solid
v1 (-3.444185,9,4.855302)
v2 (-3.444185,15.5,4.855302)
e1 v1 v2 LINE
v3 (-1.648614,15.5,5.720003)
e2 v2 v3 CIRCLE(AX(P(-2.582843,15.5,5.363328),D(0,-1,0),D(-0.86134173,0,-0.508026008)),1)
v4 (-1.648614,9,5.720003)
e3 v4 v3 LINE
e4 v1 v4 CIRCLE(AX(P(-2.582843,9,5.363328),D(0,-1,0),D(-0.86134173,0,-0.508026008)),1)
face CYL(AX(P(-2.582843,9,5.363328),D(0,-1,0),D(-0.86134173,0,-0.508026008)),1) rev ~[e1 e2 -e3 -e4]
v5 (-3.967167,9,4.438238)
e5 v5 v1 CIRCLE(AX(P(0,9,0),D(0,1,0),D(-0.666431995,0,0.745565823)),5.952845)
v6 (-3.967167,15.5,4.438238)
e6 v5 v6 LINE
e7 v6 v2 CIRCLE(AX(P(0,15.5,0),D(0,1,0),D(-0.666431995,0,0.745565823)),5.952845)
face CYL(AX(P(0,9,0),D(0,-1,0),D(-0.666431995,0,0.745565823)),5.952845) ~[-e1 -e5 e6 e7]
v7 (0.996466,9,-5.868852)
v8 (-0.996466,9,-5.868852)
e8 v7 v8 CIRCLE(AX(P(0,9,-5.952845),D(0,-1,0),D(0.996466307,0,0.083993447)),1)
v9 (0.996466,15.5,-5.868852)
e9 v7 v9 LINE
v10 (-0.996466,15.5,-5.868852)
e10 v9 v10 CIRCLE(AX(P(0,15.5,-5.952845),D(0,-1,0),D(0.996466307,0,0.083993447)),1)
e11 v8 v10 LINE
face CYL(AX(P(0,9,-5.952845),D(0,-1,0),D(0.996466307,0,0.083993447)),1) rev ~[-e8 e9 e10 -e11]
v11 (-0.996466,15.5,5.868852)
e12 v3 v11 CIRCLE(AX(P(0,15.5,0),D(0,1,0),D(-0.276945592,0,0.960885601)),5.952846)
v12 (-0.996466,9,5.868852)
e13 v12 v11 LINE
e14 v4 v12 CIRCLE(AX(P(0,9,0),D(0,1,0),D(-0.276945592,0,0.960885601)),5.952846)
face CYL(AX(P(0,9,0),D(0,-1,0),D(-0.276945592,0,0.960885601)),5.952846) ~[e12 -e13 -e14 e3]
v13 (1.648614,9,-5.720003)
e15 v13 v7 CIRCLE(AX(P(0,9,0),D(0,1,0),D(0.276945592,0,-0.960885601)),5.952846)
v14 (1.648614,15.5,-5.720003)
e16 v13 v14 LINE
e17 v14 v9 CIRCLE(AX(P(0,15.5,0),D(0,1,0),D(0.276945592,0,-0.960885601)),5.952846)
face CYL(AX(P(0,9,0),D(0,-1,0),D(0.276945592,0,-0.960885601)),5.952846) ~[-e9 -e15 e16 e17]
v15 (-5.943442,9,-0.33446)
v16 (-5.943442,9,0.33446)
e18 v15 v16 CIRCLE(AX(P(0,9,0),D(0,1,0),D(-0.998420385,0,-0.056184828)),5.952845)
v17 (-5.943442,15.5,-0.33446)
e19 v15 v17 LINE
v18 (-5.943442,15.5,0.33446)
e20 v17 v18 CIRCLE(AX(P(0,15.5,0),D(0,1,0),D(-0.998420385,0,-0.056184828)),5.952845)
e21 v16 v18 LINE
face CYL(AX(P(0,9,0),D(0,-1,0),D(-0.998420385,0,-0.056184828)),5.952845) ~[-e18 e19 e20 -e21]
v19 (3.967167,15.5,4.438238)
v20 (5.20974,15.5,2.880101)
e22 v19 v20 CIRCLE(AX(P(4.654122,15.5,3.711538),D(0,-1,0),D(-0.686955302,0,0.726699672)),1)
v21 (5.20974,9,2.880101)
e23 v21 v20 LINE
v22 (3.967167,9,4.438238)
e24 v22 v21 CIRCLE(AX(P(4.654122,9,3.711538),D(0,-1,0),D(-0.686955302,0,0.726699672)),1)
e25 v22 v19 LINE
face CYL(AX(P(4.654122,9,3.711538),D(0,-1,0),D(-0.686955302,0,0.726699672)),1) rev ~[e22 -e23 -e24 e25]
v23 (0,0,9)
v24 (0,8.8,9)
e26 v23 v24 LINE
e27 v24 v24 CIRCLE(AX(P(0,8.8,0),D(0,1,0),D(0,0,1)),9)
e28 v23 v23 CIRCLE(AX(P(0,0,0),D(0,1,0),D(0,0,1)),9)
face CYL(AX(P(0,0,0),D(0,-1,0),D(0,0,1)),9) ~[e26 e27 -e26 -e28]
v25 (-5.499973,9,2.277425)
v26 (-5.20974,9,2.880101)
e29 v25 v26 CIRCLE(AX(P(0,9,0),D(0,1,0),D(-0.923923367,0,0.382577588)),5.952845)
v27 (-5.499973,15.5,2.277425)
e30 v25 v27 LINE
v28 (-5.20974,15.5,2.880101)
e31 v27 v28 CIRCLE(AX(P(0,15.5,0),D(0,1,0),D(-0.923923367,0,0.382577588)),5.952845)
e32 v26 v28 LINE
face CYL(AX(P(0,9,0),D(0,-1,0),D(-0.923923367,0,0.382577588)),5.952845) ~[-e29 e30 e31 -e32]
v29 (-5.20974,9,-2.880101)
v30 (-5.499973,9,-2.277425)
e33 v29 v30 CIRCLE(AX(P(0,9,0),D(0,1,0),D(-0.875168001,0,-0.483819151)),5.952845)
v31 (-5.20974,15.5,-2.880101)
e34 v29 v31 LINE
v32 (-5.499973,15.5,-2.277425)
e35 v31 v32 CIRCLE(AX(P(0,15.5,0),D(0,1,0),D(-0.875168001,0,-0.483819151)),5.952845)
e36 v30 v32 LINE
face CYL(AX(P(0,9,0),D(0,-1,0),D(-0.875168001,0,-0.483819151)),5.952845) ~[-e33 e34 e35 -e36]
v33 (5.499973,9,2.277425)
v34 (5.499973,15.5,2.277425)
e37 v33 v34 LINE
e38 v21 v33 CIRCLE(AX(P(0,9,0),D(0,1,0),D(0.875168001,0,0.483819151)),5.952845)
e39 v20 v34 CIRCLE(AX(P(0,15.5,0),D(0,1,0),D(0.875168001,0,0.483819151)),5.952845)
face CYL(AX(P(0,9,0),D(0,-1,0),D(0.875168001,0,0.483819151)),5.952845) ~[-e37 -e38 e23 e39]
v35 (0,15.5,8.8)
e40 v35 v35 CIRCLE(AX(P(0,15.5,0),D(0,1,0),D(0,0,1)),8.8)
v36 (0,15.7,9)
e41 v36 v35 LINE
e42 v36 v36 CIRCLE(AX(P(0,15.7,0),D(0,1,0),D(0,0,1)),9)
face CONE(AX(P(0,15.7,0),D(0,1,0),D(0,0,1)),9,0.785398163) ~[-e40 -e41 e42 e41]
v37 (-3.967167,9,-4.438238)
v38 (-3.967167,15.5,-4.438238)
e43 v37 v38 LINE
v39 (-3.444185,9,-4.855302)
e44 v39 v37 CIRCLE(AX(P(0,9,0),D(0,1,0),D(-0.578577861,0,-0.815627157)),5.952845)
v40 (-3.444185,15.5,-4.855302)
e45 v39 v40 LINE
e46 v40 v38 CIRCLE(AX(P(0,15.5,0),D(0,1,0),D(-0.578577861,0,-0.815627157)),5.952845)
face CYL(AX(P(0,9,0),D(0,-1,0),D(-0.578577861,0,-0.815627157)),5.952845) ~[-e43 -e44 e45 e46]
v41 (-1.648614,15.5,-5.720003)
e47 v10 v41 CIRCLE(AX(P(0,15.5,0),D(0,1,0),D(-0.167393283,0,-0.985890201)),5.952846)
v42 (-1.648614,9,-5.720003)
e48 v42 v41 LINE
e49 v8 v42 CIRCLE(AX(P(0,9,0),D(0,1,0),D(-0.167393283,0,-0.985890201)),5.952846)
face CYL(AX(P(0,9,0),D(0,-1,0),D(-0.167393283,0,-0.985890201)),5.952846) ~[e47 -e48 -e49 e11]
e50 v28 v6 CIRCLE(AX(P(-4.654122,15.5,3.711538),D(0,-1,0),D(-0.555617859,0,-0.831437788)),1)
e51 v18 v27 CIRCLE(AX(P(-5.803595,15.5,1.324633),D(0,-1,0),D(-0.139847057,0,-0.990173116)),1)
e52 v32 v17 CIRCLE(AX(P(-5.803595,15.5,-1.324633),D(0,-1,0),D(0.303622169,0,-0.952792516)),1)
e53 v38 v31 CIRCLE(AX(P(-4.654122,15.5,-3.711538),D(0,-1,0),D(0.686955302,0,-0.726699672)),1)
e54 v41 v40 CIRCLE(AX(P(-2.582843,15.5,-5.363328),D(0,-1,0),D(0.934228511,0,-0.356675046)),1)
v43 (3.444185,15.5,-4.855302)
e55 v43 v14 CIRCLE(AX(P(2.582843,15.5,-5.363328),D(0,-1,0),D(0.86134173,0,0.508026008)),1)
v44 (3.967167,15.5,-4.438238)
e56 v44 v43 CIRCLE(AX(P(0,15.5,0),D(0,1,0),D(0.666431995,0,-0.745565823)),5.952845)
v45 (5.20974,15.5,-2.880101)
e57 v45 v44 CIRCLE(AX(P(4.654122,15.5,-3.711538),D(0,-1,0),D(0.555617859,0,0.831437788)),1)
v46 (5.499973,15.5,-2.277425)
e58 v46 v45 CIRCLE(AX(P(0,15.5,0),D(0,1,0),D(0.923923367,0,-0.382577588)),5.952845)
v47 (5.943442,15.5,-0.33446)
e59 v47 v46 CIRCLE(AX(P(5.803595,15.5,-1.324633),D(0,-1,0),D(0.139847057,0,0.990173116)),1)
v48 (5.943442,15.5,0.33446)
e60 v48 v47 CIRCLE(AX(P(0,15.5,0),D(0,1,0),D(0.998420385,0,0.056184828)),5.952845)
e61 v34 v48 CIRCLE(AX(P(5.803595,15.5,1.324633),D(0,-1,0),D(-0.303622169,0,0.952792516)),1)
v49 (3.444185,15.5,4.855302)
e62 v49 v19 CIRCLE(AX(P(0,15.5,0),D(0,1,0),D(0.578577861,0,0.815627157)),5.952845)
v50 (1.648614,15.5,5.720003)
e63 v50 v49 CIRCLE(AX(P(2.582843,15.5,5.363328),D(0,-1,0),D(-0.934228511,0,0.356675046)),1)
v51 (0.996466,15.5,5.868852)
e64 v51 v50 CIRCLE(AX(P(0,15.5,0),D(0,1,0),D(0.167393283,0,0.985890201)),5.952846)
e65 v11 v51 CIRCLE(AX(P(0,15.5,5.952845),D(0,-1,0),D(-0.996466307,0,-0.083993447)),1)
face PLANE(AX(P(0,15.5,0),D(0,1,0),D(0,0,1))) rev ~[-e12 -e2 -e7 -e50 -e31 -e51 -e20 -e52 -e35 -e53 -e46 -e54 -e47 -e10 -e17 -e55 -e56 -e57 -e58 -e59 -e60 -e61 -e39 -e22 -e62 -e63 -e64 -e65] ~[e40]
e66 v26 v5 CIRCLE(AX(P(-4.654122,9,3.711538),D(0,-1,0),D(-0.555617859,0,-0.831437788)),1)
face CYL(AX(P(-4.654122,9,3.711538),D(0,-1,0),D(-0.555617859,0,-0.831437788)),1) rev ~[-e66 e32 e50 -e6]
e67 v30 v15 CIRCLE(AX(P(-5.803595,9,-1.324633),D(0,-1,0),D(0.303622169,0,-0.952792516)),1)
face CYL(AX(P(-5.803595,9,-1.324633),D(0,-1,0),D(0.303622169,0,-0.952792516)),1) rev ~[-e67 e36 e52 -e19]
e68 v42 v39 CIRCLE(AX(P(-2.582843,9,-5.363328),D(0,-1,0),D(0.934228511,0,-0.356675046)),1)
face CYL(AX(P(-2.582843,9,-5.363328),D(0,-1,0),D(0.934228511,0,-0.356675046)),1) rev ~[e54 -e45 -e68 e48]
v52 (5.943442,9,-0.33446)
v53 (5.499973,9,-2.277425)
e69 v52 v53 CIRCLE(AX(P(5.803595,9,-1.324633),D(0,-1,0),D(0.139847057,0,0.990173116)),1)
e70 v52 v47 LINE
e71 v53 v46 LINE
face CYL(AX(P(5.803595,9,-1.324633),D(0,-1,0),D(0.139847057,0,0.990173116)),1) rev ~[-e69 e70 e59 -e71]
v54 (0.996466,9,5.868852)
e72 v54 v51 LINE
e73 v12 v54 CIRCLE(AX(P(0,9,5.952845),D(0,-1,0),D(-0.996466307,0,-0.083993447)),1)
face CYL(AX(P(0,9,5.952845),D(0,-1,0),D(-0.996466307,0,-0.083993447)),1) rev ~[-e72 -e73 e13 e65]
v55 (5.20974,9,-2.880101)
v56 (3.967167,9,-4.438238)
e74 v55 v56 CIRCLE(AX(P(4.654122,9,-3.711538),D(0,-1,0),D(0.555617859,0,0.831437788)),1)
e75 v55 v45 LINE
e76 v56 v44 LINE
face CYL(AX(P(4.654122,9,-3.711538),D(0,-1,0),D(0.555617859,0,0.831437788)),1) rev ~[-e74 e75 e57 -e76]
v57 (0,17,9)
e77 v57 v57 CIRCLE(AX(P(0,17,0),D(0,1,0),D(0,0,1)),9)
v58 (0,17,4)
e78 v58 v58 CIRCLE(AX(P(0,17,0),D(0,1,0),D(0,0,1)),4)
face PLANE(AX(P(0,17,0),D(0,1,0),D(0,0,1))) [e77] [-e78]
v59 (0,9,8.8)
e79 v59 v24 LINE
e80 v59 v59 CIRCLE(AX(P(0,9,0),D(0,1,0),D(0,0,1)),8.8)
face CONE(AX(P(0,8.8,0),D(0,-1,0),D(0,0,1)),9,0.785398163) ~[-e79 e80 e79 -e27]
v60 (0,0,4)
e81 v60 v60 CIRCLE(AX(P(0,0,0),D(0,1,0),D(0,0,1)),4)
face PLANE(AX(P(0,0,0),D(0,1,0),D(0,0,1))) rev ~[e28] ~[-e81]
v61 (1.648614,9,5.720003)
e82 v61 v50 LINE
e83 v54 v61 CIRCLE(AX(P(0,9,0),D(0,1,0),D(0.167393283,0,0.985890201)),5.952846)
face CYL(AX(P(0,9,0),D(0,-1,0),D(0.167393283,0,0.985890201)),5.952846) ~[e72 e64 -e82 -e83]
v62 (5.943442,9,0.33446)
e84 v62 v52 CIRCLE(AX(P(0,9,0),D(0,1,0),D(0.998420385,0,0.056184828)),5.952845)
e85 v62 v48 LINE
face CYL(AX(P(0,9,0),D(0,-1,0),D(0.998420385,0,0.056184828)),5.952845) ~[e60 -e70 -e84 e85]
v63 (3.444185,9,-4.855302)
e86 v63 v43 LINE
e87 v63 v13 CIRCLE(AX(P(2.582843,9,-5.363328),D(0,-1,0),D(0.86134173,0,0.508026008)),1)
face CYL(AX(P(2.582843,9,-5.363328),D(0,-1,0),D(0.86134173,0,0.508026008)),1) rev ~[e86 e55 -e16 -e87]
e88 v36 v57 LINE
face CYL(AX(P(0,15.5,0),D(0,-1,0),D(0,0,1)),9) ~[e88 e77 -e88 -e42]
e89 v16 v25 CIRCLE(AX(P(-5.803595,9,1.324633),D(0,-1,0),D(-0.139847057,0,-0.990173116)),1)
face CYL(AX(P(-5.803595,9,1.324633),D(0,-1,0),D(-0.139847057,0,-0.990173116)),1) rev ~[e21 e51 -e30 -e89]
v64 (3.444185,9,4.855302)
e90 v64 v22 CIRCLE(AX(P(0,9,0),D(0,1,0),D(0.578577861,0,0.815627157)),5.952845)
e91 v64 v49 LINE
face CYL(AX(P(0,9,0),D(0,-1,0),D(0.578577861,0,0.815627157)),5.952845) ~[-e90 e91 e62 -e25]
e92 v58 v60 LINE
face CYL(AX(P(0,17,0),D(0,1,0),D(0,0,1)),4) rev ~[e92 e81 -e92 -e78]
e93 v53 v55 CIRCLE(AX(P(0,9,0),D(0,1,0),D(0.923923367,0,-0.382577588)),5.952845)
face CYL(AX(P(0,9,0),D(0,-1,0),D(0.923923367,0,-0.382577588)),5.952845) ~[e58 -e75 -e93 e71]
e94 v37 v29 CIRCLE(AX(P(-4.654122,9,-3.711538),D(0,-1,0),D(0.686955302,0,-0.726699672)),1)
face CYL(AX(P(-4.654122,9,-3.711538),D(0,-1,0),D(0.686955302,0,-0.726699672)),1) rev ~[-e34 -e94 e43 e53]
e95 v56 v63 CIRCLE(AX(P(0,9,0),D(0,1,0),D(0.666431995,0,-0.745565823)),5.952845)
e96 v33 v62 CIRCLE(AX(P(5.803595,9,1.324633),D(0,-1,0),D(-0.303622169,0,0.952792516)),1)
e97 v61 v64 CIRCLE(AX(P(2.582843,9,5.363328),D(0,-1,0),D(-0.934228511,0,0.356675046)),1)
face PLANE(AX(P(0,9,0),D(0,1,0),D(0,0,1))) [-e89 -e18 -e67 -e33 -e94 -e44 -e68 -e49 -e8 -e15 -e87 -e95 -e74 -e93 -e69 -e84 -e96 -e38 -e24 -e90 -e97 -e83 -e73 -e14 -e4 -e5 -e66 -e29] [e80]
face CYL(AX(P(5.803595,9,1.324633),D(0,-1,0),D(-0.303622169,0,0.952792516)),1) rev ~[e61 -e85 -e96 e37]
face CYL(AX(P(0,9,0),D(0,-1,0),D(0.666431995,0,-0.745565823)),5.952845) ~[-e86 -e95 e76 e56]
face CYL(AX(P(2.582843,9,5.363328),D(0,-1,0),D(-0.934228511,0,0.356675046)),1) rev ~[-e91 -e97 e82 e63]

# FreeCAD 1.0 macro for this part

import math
import FreeCAD as App
import Part
import Sketcher
from FreeCAD import Vector
Q = App.Units.Quantity


def edges_at(feature, points):
    """Names of the edges that pass closest to the given points."""
    edges = feature.Shape.Edges
    near = lambda p: min(range(len(edges)), key=lambda i: edges[i].distToShape(Part.Vertex(*p))[0])
    return sorted({f"Edge{near(p) + 1}" for p in points})

doc = App.newDocument("Part")
body = doc.addObject("PartDesign::Body", "Body")

# Sketch on XZ plane
sketch1 = body.newObject("Sketcher::SketchObject", "Sketch")
sketch1.AttachmentSupport = (doc.getObject("XZ_Plane"), [""])
sketch1.MapMode = "FlatFace"
sketch1.addGeometry(Part.Circle(Vector(0, 0, 0), Vector(0, 0, 1), 9), False)
sketch1.addConstraint([
    Sketcher.Constraint("Coincident", 0, 3, -1, 1),
    Sketcher.Constraint("Diameter", 0, Q("18 mm")),
])
pad1 = body.newObject("PartDesign::Pad", "Pad")
pad1.Profile = sketch1
pad1.Length = 9
pad1.Reversed = True

# Sketch on XZ plane
sketch2 = body.newObject("Sketcher::SketchObject", "Sketch001")
sketch2.AttachmentSupport = (doc.getObject("XZ_Plane"), [""])
sketch2.MapMode = "FlatFace"
sketch2.AttachmentOffset = App.Placement(Vector(0, 0, -9), App.Rotation())
sketch2.addGeometry([
    Part.ArcOfCircle(Part.Circle(Vector(0, 0, 0), Vector(0, 0, 1), 6), math.radians(-131.79), math.radians(-125.35)),  # 0
    Part.ArcOfCircle(Part.Circle(Vector(-4.7, -3.7, 0), Vector(0, 0, 1), 1), math.radians(-47), math.radians(124)),  # 1
    Part.ArcOfCircle(Part.Circle(Vector(0, 0, 0), Vector(0, 0, 1), 6), math.radians(-157.51), math.radians(-151.06)),  # 2
    Part.ArcOfCircle(Part.Circle(Vector(-5.8, -1.3, 0), Vector(0, 0, 1), 1), math.radians(-72), math.radians(98)),  # 3
    Part.ArcOfCircle(Part.Circle(Vector(0, 0, 0), Vector(0, 0, 1), 6), math.radians(176.78), math.radians(183.22)),  # 4
    Part.ArcOfCircle(Part.Circle(Vector(-5.8, 1.3, 0), Vector(0, 0, 1), 1), math.radians(-98), math.radians(72)),  # 5
    Part.ArcOfCircle(Part.Circle(Vector(0, 0, 0), Vector(0, 0, 1), 6), math.radians(151.06), math.radians(157.51)),  # 6
    Part.ArcOfCircle(Part.Circle(Vector(-4.7, 3.7, 0), Vector(0, 0, 1), 1), math.radians(-124), math.radians(47)),  # 7
    Part.ArcOfCircle(Part.Circle(Vector(0, 0, 0), Vector(0, 0, 1), 6), math.radians(125.35), math.radians(131.79)),  # 8
    Part.ArcOfCircle(Part.Circle(Vector(-2.6, 5.4, 0), Vector(0, 0, 1), 1), math.radians(-149), math.radians(21)),  # 9
    Part.ArcOfCircle(Part.Circle(Vector(0, 0, 0), Vector(0, 0, 1), 6), math.radians(99.64), math.radians(106.08)),  # 10
    Part.ArcOfCircle(Part.Circle(Vector(0, 6, 0), Vector(0, 0, 1), 1), math.radians(-175), math.radians(-5)),  # 11
    Part.ArcOfCircle(Part.Circle(Vector(0, 0, 0), Vector(0, 0, 1), 6), math.radians(73.92), math.radians(80.36)),  # 12
    Part.ArcOfCircle(Part.Circle(Vector(2.6, 5.4, 0), Vector(0, 0, 1), 1), math.radians(159), math.radians(329)),  # 13
    Part.ArcOfCircle(Part.Circle(Vector(0, 0, 0), Vector(0, 0, 1), 6), math.radians(48.21), math.radians(54.65)),  # 14
    Part.ArcOfCircle(Part.Circle(Vector(4.7, 3.7, 0), Vector(0, 0, 1), 1), math.radians(133), math.radians(304)),  # 15
    Part.ArcOfCircle(Part.Circle(Vector(0, 0, 0), Vector(0, 0, 1), 6), math.radians(22.49), math.radians(28.94)),  # 16
    Part.ArcOfCircle(Part.Circle(Vector(5.8, 1.3, 0), Vector(0, 0, 1), 1), math.radians(108), math.radians(278)),  # 17
    Part.ArcOfCircle(Part.Circle(Vector(0, 0, 0), Vector(0, 0, 1), 6), math.radians(-3.22), math.radians(3.22)),  # 18
    Part.ArcOfCircle(Part.Circle(Vector(5.8, -1.3, 0), Vector(0, 0, 1), 1), math.radians(82), math.radians(252)),  # 19
    Part.ArcOfCircle(Part.Circle(Vector(0, 0, 0), Vector(0, 0, 1), 6), math.radians(-28.94), math.radians(-22.49)),  # 20
    Part.ArcOfCircle(Part.Circle(Vector(4.7, -3.7, 0), Vector(0, 0, 1), 1), math.radians(56), math.radians(227)),  # 21
    Part.ArcOfCircle(Part.Circle(Vector(0, 0, 0), Vector(0, 0, 1), 6), math.radians(-54.65), math.radians(-48.21)),  # 22
    Part.ArcOfCircle(Part.Circle(Vector(2.6, -5.4, 0), Vector(0, 0, 1), 1), math.radians(31), math.radians(201)),  # 23
    Part.ArcOfCircle(Part.Circle(Vector(0, 0, 0), Vector(0, 0, 1), 6), math.radians(-80.36), math.radians(-73.92)),  # 24
    Part.ArcOfCircle(Part.Circle(Vector(0, -6, 0), Vector(0, 0, 1), 1), math.radians(5), math.radians(175)),  # 25
    Part.ArcOfCircle(Part.Circle(Vector(0, 0, 0), Vector(0, 0, 1), 6), math.radians(-106.08), math.radians(-99.64)),  # 26
    Part.ArcOfCircle(Part.Circle(Vector(-2.6, -5.4, 0), Vector(0, 0, 1), 1), math.radians(-21), math.radians(149)),  # 27
], False)
sketch2.addConstraint([
    Sketcher.Constraint("Coincident", 0, 1, 1, 1),
    Sketcher.Constraint("Coincident", 1, 2, 2, 2),
    Sketcher.Constraint("Coincident", 2, 1, 3, 1),
    Sketcher.Constraint("Coincident", 3, 2, 4, 2),
    Sketcher.Constraint("Coincident", 4, 1, 5, 1),
    Sketcher.Constraint("Coincident", 5, 2, 6, 2),
    Sketcher.Constraint("Coincident", 6, 1, 7, 1),
    Sketcher.Constraint("Coincident", 7, 2, 8, 2),
    Sketcher.Constraint("Coincident", 8, 1, 9, 1),
    Sketcher.Constraint("Coincident", 9, 2, 10, 2),
    Sketcher.Constraint("Coincident", 10, 1, 11, 1),
    Sketcher.Constraint("Coincident", 11, 2, 12, 2),
    Sketcher.Constraint("Coincident", 12, 1, 13, 1),
    Sketcher.Constraint("Coincident", 13, 2, 14, 2),
    Sketcher.Constraint("Coincident", 14, 1, 15, 1),
    Sketcher.Constraint("Coincident", 15, 2, 16, 2),
    Sketcher.Constraint("Coincident", 16, 1, 17, 1),
    Sketcher.Constraint("Coincident", 17, 2, 18, 2),
    Sketcher.Constraint("Coincident", 18, 1, 19, 1),
    Sketcher.Constraint("Coincident", 19, 2, 20, 2),
    Sketcher.Constraint("Coincident", 20, 1, 21, 1),
    Sketcher.Constraint("Coincident", 21, 2, 22, 2),
    Sketcher.Constraint("Coincident", 22, 1, 23, 1),
    Sketcher.Constraint("Coincident", 23, 2, 24, 2),
    Sketcher.Constraint("Coincident", 24, 1, 25, 1),
    Sketcher.Constraint("Coincident", 25, 2, 26, 2),
    Sketcher.Constraint("Coincident", 26, 1, 27, 1),
    Sketcher.Constraint("Coincident", 27, 2, 0, 2),
    Sketcher.Constraint("Coincident", 0, 3, -1, 1),
    Sketcher.Constraint("Coincident", 2, 3, -1, 1),
    Sketcher.Constraint("Coincident", 4, 3, -1, 1),
    Sketcher.Constraint("Coincident", 6, 3, -1, 1),
    Sketcher.Constraint("Coincident", 8, 3, -1, 1),
    Sketcher.Constraint("Coincident", 10, 3, -1, 1),
    Sketcher.Constraint("Coincident", 12, 3, -1, 1),
    Sketcher.Constraint("Coincident", 14, 3, -1, 1),
    Sketcher.Constraint("Coincident", 16, 3, -1, 1),
    Sketcher.Constraint("Coincident", 18, 3, -1, 1),
    Sketcher.Constraint("Coincident", 20, 3, -1, 1),
    Sketcher.Constraint("Coincident", 22, 3, -1, 1),
    Sketcher.Constraint("Coincident", 24, 3, -1, 1),
    Sketcher.Constraint("Coincident", 26, 3, -1, 1),
    Sketcher.Constraint("Equal", 0, 2),
    Sketcher.Constraint("Equal", 1, 3),
    Sketcher.Constraint("Equal", 2, 4),
    Sketcher.Constraint("Equal", 3, 5),
    Sketcher.Constraint("Equal", 4, 6),
    Sketcher.Constraint("Equal", 5, 7),
    Sketcher.Constraint("Equal", 6, 8),
    Sketcher.Constraint("Equal", 7, 9),
    Sketcher.Constraint("Equal", 8, 10),
    Sketcher.Constraint("Equal", 9, 11),
    Sketcher.Constraint("Equal", 10, 12),
    Sketcher.Constraint("Equal", 11, 13),
    Sketcher.Constraint("Equal", 12, 14),
    Sketcher.Constraint("Equal", 13, 15),
    Sketcher.Constraint("Equal", 14, 16),
    Sketcher.Constraint("Equal", 15, 17),
    Sketcher.Constraint("Equal", 16, 18),
    Sketcher.Constraint("Equal", 17, 19),
    Sketcher.Constraint("Equal", 18, 20),
    Sketcher.Constraint("Equal", 19, 21),
    Sketcher.Constraint("Equal", 20, 22),
    Sketcher.Constraint("Equal", 21, 23),
    Sketcher.Constraint("Equal", 22, 24),
    Sketcher.Constraint("Equal", 23, 25),
    Sketcher.Constraint("Equal", 24, 26),
    Sketcher.Constraint("Equal", 25, 27),
    Sketcher.Constraint("Symmetric", 1, 3, 15, 3, -1, 1),
    Sketcher.Constraint("Symmetric", 3, 3, 17, 3, -1, 1),
    Sketcher.Constraint("Symmetric", 5, 3, 19, 3, -1, 1),
    Sketcher.Constraint("Symmetric", 7, 3, 21, 3, -1, 1),
    Sketcher.Constraint("Symmetric", 9, 3, 23, 3, -1, 1),
    Sketcher.Constraint("Symmetric", 11, 3, 25, 3, -1, 1),
    Sketcher.Constraint("Symmetric", 13, 3, 27, 3, -1, 1),
    Sketcher.Constraint("Symmetric", 9, 3, 13, 3, -2),
    Sketcher.Constraint("Symmetric", 7, 3, 15, 3, -2),
    Sketcher.Constraint("Symmetric", 5, 3, 17, 3, -2),
    Sketcher.Constraint("PointOnObject", 11, 3, -2),
    Sketcher.Constraint("Radius", 1, Q("1 mm")),
    Sketcher.Constraint("Radius", 0, Q("5.952845 mm")),
    Sketcher.Constraint("DistanceY", 1, 2, -1, 1, Q("2.880101 mm")),
    Sketcher.Constraint("DistanceY", 0, 1, 1, 3, Q("0.7267 mm")),
    Sketcher.Constraint("DistanceY", 6, 1, 8, 1, Q("1.975202 mm")),
    Sketcher.Constraint("DistanceY", 8, 1, 9, 2, Q("0.864701 mm")),
    Sketcher.Constraint("DistanceX", 7, 2, 10, 1, Q("2.9707 mm")),
    Sketcher.Constraint("DistanceY", 3, 2, -1, 1, Q("0.33446 mm")),
    Sketcher.Constraint("DistanceY", 1, 3, 5, 3, Q("5.036171 mm")),
])
pad2 = body.newObject("PartDesign::Pad", "Pad001")
pad2.Profile = sketch2
pad2.Length = 6.5
pad2.Reversed = True

# Sketch on XZ plane
sketch3 = body.newObject("Sketcher::SketchObject", "Sketch002")
sketch3.AttachmentSupport = (doc.getObject("XZ_Plane"), [""])
sketch3.MapMode = "FlatFace"
sketch3.AttachmentOffset = App.Placement(Vector(0, 0, -15.5), App.Rotation())
sketch3.addGeometry(Part.Circle(Vector(0, 0, 0), Vector(0, 0, 1), 9), False)
sketch3.addConstraint([
    Sketcher.Constraint("Coincident", 0, 3, -1, 1),
    Sketcher.Constraint("Diameter", 0, Q("18 mm")),
])
pad3 = body.newObject("PartDesign::Pad", "Pad002")
pad3.Profile = sketch3
pad3.Length = 1.5
pad3.Reversed = True

# Sketch on XZ plane
sketch4 = body.newObject("Sketcher::SketchObject", "Sketch003")
sketch4.AttachmentSupport = (doc.getObject("XZ_Plane"), [""])
sketch4.MapMode = "FlatFace"
sketch4.AttachmentOffset = App.Placement(Vector(0, 0, -17), App.Rotation())
sketch4.addGeometry(Part.Circle(Vector(0, 0, 0), Vector(0, 0, 1), 4), False)
sketch4.addConstraint([
    Sketcher.Constraint("Coincident", 0, 3, -1, 1),
    Sketcher.Constraint("Diameter", 0, Q("8 mm")),
])
pocket1 = body.newObject("PartDesign::Pocket", "Pocket")
pocket1.Profile = sketch4
pocket1.Type = "ThroughAll"
pocket1.Reversed = True
doc.recompute()

chamfer = body.newObject("PartDesign::Chamfer", "Chamfer")
chamfer.Base = (pocket1, edges_at(pocket1, [(0, 9, -9), (0, 15.5, -9)]))
chamfer.Size = 0.2

doc.recompute()
